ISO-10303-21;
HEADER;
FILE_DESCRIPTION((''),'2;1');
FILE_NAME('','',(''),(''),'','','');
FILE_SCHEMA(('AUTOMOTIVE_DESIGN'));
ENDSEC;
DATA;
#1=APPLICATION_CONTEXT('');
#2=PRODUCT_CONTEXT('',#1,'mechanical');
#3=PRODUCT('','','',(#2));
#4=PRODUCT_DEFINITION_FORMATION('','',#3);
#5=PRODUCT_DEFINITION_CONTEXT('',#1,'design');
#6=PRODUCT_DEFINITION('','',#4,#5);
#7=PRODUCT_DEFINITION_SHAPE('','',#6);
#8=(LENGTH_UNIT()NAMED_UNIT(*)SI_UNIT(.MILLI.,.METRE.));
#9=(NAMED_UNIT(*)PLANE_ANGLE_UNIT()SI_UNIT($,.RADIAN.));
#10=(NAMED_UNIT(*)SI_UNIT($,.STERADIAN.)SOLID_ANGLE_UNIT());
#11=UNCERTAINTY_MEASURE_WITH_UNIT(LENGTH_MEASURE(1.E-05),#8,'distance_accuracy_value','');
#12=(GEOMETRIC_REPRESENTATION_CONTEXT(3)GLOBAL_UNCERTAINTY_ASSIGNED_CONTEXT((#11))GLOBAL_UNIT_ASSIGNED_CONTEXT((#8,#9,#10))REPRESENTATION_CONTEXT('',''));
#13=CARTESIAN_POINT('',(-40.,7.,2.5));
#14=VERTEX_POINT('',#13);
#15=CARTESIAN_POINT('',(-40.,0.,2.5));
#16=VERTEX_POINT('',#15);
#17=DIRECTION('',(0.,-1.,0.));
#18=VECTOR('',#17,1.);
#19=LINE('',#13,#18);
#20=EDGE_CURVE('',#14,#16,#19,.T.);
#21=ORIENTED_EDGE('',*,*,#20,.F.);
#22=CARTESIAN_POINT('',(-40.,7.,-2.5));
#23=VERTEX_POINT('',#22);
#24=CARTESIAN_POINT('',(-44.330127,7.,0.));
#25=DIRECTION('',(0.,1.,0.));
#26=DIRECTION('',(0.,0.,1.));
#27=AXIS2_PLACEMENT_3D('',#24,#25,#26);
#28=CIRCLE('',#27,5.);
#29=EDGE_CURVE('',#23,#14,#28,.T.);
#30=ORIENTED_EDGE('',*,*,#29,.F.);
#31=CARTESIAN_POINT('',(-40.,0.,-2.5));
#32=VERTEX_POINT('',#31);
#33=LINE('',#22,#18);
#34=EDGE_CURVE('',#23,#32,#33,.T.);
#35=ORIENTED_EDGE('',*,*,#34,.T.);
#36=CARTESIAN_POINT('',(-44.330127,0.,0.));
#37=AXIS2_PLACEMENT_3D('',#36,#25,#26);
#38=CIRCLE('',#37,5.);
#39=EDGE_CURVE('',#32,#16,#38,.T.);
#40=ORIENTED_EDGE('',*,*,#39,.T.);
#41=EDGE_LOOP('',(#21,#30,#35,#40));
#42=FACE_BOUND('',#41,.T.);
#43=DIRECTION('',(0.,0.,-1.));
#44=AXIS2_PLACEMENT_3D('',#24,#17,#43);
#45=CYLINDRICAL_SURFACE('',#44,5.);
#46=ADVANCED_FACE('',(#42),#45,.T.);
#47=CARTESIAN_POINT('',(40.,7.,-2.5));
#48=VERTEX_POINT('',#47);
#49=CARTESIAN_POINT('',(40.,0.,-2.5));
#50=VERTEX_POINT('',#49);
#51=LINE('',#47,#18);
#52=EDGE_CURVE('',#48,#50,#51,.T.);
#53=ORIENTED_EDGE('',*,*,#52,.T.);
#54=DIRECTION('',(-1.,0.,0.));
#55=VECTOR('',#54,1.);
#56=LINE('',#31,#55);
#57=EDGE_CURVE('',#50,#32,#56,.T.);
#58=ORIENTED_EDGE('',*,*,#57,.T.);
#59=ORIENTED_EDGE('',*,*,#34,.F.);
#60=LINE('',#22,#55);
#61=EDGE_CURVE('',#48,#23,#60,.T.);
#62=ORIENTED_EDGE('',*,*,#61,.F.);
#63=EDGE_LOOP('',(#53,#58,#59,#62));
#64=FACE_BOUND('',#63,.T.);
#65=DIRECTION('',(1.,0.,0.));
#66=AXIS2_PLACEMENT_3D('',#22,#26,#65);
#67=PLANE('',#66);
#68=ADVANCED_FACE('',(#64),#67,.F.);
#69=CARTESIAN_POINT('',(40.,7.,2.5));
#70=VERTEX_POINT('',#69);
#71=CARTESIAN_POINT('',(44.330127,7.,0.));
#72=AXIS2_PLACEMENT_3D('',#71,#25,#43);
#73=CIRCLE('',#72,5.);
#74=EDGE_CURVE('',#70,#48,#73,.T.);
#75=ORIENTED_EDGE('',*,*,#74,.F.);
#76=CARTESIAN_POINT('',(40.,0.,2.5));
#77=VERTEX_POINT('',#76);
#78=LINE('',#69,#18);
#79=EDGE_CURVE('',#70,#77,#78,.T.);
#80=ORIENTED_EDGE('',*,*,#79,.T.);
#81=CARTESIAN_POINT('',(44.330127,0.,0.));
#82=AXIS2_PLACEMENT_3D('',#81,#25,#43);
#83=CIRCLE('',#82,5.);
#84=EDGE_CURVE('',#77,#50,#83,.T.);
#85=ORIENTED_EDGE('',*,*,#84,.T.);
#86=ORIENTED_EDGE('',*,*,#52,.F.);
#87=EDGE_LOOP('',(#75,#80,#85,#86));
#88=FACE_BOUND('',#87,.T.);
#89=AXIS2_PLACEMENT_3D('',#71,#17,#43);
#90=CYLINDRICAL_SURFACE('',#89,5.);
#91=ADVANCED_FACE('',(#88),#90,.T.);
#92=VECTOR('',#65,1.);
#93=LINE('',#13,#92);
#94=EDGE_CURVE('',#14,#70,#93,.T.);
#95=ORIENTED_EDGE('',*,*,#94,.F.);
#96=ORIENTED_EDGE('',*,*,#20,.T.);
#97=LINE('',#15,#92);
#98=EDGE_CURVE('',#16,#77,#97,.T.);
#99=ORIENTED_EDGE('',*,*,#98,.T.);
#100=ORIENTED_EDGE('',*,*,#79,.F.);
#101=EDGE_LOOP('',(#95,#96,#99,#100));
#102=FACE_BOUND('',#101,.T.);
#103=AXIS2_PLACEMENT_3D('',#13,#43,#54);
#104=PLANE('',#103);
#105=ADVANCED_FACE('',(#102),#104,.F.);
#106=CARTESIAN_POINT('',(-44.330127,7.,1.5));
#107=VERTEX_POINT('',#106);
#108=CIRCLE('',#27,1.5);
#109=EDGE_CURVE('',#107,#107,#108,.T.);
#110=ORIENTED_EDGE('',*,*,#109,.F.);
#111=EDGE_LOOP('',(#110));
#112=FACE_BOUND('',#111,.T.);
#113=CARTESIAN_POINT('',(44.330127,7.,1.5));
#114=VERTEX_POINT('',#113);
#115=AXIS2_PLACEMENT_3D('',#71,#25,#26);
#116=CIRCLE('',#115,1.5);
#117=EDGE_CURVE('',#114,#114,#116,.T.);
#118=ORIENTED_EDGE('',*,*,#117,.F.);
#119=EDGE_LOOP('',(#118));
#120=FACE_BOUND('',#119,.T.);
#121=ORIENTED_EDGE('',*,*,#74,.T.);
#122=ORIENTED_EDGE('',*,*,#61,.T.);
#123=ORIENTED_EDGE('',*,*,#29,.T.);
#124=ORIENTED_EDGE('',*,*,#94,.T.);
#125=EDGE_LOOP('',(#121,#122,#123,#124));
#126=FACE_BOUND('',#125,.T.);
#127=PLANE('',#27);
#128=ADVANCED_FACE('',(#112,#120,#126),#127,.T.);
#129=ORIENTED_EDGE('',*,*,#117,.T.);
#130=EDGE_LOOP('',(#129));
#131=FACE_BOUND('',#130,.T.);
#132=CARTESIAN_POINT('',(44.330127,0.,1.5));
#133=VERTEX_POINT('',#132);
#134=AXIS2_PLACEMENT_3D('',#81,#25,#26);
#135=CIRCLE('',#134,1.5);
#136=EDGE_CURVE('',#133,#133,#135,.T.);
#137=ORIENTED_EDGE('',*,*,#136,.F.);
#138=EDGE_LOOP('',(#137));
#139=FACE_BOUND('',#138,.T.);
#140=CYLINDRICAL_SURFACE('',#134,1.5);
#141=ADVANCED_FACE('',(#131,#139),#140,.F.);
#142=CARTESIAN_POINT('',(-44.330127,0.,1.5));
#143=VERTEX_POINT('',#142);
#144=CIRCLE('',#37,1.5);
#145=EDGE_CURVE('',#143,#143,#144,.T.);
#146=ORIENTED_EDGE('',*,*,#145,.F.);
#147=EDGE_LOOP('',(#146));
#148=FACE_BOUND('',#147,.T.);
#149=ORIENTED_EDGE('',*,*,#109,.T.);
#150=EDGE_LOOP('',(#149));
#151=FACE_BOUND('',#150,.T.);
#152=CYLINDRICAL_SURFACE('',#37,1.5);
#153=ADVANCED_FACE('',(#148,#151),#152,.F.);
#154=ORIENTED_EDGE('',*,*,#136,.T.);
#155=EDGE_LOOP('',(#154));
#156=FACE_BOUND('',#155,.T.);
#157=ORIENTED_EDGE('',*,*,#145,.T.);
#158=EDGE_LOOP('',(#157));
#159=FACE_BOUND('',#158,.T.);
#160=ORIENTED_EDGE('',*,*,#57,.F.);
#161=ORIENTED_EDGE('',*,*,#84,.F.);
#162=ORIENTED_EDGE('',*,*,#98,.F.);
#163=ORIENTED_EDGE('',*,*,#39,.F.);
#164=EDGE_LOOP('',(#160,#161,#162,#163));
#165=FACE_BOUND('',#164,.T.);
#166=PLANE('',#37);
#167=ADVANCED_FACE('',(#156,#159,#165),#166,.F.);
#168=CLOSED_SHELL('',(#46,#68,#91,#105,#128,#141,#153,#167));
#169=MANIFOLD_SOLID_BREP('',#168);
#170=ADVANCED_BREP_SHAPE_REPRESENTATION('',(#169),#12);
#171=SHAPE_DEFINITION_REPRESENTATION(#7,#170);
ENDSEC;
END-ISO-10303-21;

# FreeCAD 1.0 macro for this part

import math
import FreeCAD as App
import Part
import Sketcher

V = App.Vector
Q = App.Units.Quantity

doc = App.newDocument("Part")
body = doc.addObject("PartDesign::Body", "Body")

# Sketch on XZ plane
sketch1 = body.newObject("Sketcher::SketchObject", "Sketch")
sketch1.AttachmentSupport = (doc.getObject("XZ_Plane"), [""])
sketch1.MapMode = "FlatFace"
sketch1.addGeometry([
    Part.LineSegment(V(40, -2, 0), V(-40, -2, 0)),
    Part.ArcOfCircle(Part.Circle(V(-44, 0, 0), V(0, 0, 1), 5), math.radians(30), math.radians(330)),
    Part.LineSegment(V(-40, 2, 0), V(40, 2, 0)),
    Part.ArcOfCircle(Part.Circle(V(44, 0, 0), V(0, 0, 1), 5), math.radians(-150), math.radians(150)),
], False)
sketch1.addConstraint([
    Sketcher.Constraint("Coincident", 0, 2, 1, 2),
    Sketcher.Constraint("Coincident", 1, 1, 2, 1),
    Sketcher.Constraint("Coincident", 2, 2, 3, 2),
    Sketcher.Constraint("Coincident", 3, 1, 0, 1),
    Sketcher.Constraint("Horizontal", 0),
    Sketcher.Constraint("Horizontal", 2),
    Sketcher.Constraint("Equal", 1, 3),
    Sketcher.Constraint("Symmetric", 1, 3, 3, 3, -1, 1),
    Sketcher.Constraint("Symmetric", 0, 2, 1, 1, -1),
    Sketcher.Constraint("Radius", 1, Q("5 mm")),
    Sketcher.Constraint("DistanceX", 0, 2, 0, 1, Q("80 mm")),
    Sketcher.Constraint("DistanceY", 0, 2, 1, 1, Q("5 mm")),
])
pad1 = body.newObject("PartDesign::Pad", "Pad")
pad1.Profile = sketch1
pad1.Length = 7
pad1.Reversed = True

# Sketch on XZ plane
sketch2 = body.newObject("Sketcher::SketchObject", "Sketch001")
sketch2.AttachmentSupport = (doc.getObject("XZ_Plane"), [""])
sketch2.MapMode = "FlatFace"
sketch2.AttachmentOffset = App.Placement(V(0, 0, -7), App.Rotation())
sketch2.addGeometry([
    Part.Circle(V(-44.3, 0, 0), V(0, 0, 1), 1.5),
    Part.Circle(V(44.3, 0, 0), V(0, 0, 1), 1.5),
], False)
sketch2.addConstraint([
    Sketcher.Constraint("Equal", 0, 1),
    Sketcher.Constraint("Symmetric", 0, 3, 1, 3, -1, 1),
    Sketcher.Constraint("PointOnObject", 0, 3, -1),
    Sketcher.Constraint("Diameter", 0, Q("3 mm")),
    Sketcher.Constraint("DistanceX", 0, 3, -1, 1, Q("44.330127 mm")),
])
pocket1 = body.newObject("PartDesign::Pocket", "Pocket")
pocket1.Profile = sketch2
pocket1.Type = "ThroughAll"
pocket1.Reversed = True

doc.recompute()
